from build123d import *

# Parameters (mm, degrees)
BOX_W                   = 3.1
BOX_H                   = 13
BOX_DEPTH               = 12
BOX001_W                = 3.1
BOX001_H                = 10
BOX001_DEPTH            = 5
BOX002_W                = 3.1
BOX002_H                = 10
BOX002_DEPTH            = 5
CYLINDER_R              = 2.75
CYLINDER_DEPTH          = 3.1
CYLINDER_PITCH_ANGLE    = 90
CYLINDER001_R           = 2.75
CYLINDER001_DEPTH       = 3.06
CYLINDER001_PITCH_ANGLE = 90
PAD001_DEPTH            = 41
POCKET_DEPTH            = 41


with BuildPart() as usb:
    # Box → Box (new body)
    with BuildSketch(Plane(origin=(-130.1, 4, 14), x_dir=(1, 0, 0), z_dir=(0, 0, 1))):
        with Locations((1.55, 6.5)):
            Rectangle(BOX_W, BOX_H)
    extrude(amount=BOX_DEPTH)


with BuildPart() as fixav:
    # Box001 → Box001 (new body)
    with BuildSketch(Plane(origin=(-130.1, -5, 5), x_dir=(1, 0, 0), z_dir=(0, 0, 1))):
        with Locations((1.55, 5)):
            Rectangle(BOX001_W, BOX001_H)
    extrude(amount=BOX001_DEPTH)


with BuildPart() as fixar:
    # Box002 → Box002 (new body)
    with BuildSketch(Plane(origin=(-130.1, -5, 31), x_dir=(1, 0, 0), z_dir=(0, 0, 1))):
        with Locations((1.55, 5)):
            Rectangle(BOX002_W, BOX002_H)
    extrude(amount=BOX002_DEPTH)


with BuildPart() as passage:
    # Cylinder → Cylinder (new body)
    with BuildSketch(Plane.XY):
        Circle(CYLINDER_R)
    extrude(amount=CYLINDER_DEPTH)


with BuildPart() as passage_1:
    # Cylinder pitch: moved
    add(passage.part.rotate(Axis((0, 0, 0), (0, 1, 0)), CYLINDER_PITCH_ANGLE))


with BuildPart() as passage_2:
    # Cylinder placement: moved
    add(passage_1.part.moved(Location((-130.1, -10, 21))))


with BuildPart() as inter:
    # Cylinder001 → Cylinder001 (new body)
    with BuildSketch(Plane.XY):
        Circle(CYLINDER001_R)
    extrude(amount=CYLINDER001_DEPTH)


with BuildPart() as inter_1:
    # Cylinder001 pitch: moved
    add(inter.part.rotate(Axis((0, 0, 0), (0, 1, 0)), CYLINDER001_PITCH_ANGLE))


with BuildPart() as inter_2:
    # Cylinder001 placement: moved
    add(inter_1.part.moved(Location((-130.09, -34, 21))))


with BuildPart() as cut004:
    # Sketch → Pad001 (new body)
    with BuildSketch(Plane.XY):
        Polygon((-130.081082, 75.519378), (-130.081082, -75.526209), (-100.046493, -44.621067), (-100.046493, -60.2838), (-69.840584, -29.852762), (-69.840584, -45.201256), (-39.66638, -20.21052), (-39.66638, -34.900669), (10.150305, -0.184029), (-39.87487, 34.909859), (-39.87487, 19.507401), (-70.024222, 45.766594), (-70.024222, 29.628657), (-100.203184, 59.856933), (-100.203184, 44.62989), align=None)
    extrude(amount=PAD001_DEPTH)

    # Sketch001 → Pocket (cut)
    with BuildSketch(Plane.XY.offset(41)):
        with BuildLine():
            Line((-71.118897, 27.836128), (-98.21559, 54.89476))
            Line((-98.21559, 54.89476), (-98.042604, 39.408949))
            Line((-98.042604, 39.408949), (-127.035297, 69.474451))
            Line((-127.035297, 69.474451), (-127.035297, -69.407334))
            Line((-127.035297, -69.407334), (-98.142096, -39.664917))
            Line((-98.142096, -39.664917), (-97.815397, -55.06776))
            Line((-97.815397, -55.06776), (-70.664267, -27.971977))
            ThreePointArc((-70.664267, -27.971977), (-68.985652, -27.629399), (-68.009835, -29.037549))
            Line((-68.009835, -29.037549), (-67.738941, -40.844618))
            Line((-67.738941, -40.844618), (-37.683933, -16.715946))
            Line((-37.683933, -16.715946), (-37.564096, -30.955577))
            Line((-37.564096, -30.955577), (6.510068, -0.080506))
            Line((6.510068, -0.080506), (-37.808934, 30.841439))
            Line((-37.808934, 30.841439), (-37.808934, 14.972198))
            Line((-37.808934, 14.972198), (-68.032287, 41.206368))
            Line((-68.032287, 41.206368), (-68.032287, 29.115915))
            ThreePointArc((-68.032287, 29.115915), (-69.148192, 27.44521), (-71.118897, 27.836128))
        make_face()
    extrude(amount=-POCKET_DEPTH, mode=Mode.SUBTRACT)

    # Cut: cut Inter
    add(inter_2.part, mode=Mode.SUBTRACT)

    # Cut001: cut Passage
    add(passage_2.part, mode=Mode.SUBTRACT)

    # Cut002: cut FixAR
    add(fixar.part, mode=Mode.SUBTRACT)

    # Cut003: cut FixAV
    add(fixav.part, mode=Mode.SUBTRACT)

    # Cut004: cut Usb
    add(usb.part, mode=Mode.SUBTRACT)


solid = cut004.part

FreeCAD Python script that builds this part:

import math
import FreeCAD as App
import Part
import Sketcher
from FreeCAD import Vector
Q = App.Units.Quantity


def add_polygon(sketch, points):
    """Adds a closed chain of lines whose ends are joined by coincident constraints."""
    first, n = sketch.GeometryCount, len(points)
    for a, b in zip(points, points[1:] + points[:1]):
        sketch.addGeometry(Part.LineSegment(App.Vector(*a, 0), App.Vector(*b, 0)), False)
    for i in range(n):
        sketch.addConstraint(Sketcher.Constraint("Coincident", first + i, 2, first + (i + 1) % n, 1))

doc = App.newDocument("Part")
body = doc.addObject("PartDesign::Body", "Body")

# Sketch on XY plane
sketch1 = doc.addObject("Sketcher::SketchObject", "Sketch")
body.addObject(sketch1)
sketch1.AttachmentSupport = (doc.XY_Plane, [""])
sketch1.MapMode = "FlatFace"
sketch1.AttachmentOffset = App.Placement(Vector(0, 0, 14), App.Rotation())
add_polygon(sketch1, [(-130.1, 17), (-130.1, 4), (-127, 4), (-127, 17)])  # lines 0-3
sketch1.addConstraint(Sketcher.Constraint("Vertical", 0))
sketch1.addConstraint(Sketcher.Constraint("Horizontal", 1))
sketch1.addConstraint(Sketcher.Constraint("Vertical", 2))
sketch1.addConstraint(Sketcher.Constraint("Horizontal", 3))
sketch1.addConstraint(Sketcher.Constraint("DistanceY", 0, 2, 0, 1, 13.0))
sketch1.addConstraint(Sketcher.Constraint("DistanceX", 1, 1, 1, 2, 3.1))
sketch1.addConstraint(Sketcher.Constraint("DistanceY", -1, 1, 0, 2, 4.0))
sketch1.addConstraint(Sketcher.Constraint("DistanceX", 1, 2, -1, 1, 127.0))
pad1 = doc.addObject("PartDesign::Pad", "Pad")
body.addObject(pad1)
pad1.Profile = sketch1
pad1.Length = 12
body2 = doc.addObject("PartDesign::Body", "Body001")

# Sketch on XY plane
sketch2 = doc.addObject("Sketcher::SketchObject", "Sketch001")
body2.addObject(sketch2)
sketch2.AttachmentSupport = (doc.getObject("XY_Plane001"), [""])
sketch2.MapMode = "FlatFace"
sketch2.AttachmentOffset = App.Placement(Vector(0, 0, 5), App.Rotation())
add_polygon(sketch2, [(-130.1, 5), (-130.1, -5), (-127, -5), (-127, 5)])  # lines 0-3
sketch2.addConstraint(Sketcher.Constraint("Vertical", 0))
sketch2.addConstraint(Sketcher.Constraint("Horizontal", 1))
sketch2.addConstraint(Sketcher.Constraint("Vertical", 2))
sketch2.addConstraint(Sketcher.Constraint("Horizontal", 3))
sketch2.addConstraint(Sketcher.Constraint("DistanceY", 0, 2, 0, 1, 10.0))
sketch2.addConstraint(Sketcher.Constraint("DistanceX", 1, 1, 1, 2, 3.1))
sketch2.addConstraint(Sketcher.Constraint("DistanceY", 0, 2, -1, 1, 5.0))
sketch2.addConstraint(Sketcher.Constraint("DistanceX", 1, 2, -1, 1, 127.0))
pad2 = doc.addObject("PartDesign::Pad", "Pad001")
body2.addObject(pad2)
pad2.Profile = sketch2
pad2.Length = 5
body3 = doc.addObject("PartDesign::Body", "Body002")

# Sketch on XY plane
sketch3 = doc.addObject("Sketcher::SketchObject", "Sketch002")
body3.addObject(sketch3)
sketch3.AttachmentSupport = (doc.getObject("XY_Plane002"), [""])
sketch3.MapMode = "FlatFace"
sketch3.AttachmentOffset = App.Placement(Vector(0, 0, 31), App.Rotation())
add_polygon(sketch3, [(-130.1, 5), (-130.1, -5), (-127, -5), (-127, 5)])  # lines 0-3
sketch3.addConstraint(Sketcher.Constraint("Vertical", 0))
sketch3.addConstraint(Sketcher.Constraint("Horizontal", 1))
sketch3.addConstraint(Sketcher.Constraint("Vertical", 2))
sketch3.addConstraint(Sketcher.Constraint("Horizontal", 3))
sketch3.addConstraint(Sketcher.Constraint("DistanceY", 0, 2, 0, 1, 10.0))
sketch3.addConstraint(Sketcher.Constraint("DistanceX", 1, 1, 1, 2, 3.1))
sketch3.addConstraint(Sketcher.Constraint("DistanceY", 0, 2, -1, 1, 5.0))
sketch3.addConstraint(Sketcher.Constraint("DistanceX", 1, 2, -1, 1, 127.0))
pad3 = doc.addObject("PartDesign::Pad", "Pad002")
body3.addObject(pad3)
pad3.Profile = sketch3
pad3.Length = 5
body4 = doc.addObject("PartDesign::Body", "Body003")

# Sketch on XY plane
sketch4 = doc.addObject("Sketcher::SketchObject", "Sketch003")
body4.addObject(sketch4)
sketch4.AttachmentSupport = (doc.getObject("XY_Plane003"), [""])
sketch4.MapMode = "FlatFace"
sketch4.addGeometry(Part.Circle(Vector(0, 0, 0), Vector(0, 0, 1), 2.8), False)
sketch4.addConstraint(Sketcher.Constraint("Coincident", 0, 3, -1, 1))
sketch4.addConstraint(Sketcher.Constraint("Diameter", 0, 5.5))
pad4 = doc.addObject("PartDesign::Pad", "Pad003")
body4.addObject(pad4)
pad4.Profile = sketch4
pad4.Length = 3.1
body5 = doc.addObject("PartDesign::Body", "Body004")
doc.recompute()

body4.Placement = App.Placement(Vector(0, 0, 0), App.Rotation(Vector(0, 1, 0), 90))
boolean = doc.addObject("PartDesign::Boolean", "Boolean")
body5.addObject(boolean)
boolean.Type = "Fuse"
boolean.addObjects([body4])
body6 = doc.addObject("PartDesign::Body", "Body005")
doc.recompute()

body5.Placement = App.Placement(Vector(-130.1, -10, 21), App.Rotation(Vector(0, 0, 1), 0))
boolean2 = doc.addObject("PartDesign::Boolean", "Boolean001")
body6.addObject(boolean2)
boolean2.Type = "Fuse"
boolean2.addObjects([body5])
body7 = doc.addObject("PartDesign::Body", "Body006")

# Sketch on XY plane
sketch5 = doc.addObject("Sketcher::SketchObject", "Sketch004")
body7.addObject(sketch5)
sketch5.AttachmentSupport = (doc.getObject("XY_Plane006"), [""])
sketch5.MapMode = "FlatFace"
sketch5.addGeometry(Part.Circle(Vector(0, 0, 0), Vector(0, 0, 1), 2.8), False)
sketch5.addConstraint(Sketcher.Constraint("Coincident", 0, 3, -1, 1))
sketch5.addConstraint(Sketcher.Constraint("Diameter", 0, 5.5))
pad5 = doc.addObject("PartDesign::Pad", "Pad004")
body7.addObject(pad5)
pad5.Profile = sketch5
pad5.Length = 3.06
body8 = doc.addObject("PartDesign::Body", "Body007")
doc.recompute()

body7.Placement = App.Placement(Vector(0, 0, 0), App.Rotation(Vector(0, 1, 0), 90))
boolean3 = doc.addObject("PartDesign::Boolean", "Boolean002")
body8.addObject(boolean3)
boolean3.Type = "Fuse"
boolean3.addObjects([body7])
body9 = doc.addObject("PartDesign::Body", "Body008")
doc.recompute()

body8.Placement = App.Placement(Vector(-130.09, -34, 21), App.Rotation(Vector(0, 0, 1), 0))
boolean4 = doc.addObject("PartDesign::Boolean", "Boolean003")
body9.addObject(boolean4)
boolean4.Type = "Fuse"
boolean4.addObjects([body8])
body10 = doc.addObject("PartDesign::Body", "Body009")

# Sketch on XY plane
sketch6 = doc.addObject("Sketcher::SketchObject", "Sketch005")
body10.addObject(sketch6)
sketch6.AttachmentSupport = (doc.getObject("XY_Plane009"), [""])
sketch6.MapMode = "FlatFace"
add_polygon(sketch6, [(-130, 76), (-130, -76), (-100, -45), (-100, -60), (-70, -30), (-70, -45), (-40, -20), (-40, -35), (10, 0), (-40, 35), (-40, 20), (-70, 46), (-70, 30), (-100, 60), (-100, 45)])  # lines 0-14
sketch6.addConstraint(Sketcher.Constraint("Vertical", 0))
sketch6.addConstraint(Sketcher.Constraint("Vertical", 2))
sketch6.addConstraint(Sketcher.Constraint("Vertical", 4))
sketch6.addConstraint(Sketcher.Constraint("Vertical", 6))
sketch6.addConstraint(Sketcher.Constraint("Vertical", 9))
sketch6.addConstraint(Sketcher.Constraint("Vertical", 11))
sketch6.addConstraint(Sketcher.Constraint("Vertical", 13))
sketch6.addConstraint(Sketcher.Constraint("DistanceY", 6, 2, 6, 1, 14.690149))
sketch6.addConstraint(Sketcher.Constraint("DistanceY", 2, 2, -1, 1, 60.2838))
sketch6.addConstraint(Sketcher.Constraint("DistanceY", -1, 1, 9, 2, 19.507401))
sketch6.addConstraint(Sketcher.Constraint("DistanceX", 0, 2, 3, 2, 60.240498))
sketch6.addConstraint(Sketcher.Constraint("DistanceX", 1, 2, 7, 2, 110.196798))
sketch6.addConstraint(Sketcher.Constraint("DistanceY", 11, 2, 8, 2, 5.281202))
sketch6.addConstraint(Sketcher.Constraint("DistanceX", 12, 2, 3, 2, 30.3626))
sketch6.addConstraint(Sketcher.Constraint("Distance", 3, 42.877092))
sketch6.addConstraint(Sketcher.Constraint("Distance", 12, 42.714382))
sketch6.addConstraint(Sketcher.Constraint("DistanceY", 0, 2, 0, 1, 151.045587))
sketch6.addConstraint(Sketcher.Constraint("DistanceY", 2, 2, 2, 1, 15.662733))
sketch6.addConstraint(Sketcher.Constraint("DistanceY", 4, 2, 4, 1, 15.348494))
sketch6.addConstraint(Sketcher.Constraint("DistanceY", 9, 2, 9, 1, 15.402458))
sketch6.addConstraint(Sketcher.Constraint("DistanceY", 11, 2, 11, 1, 16.137937))
sketch6.addConstraint(Sketcher.Constraint("DistanceY", 13, 2, 13, 1, 15.227043))
sketch6.addConstraint(Sketcher.Constraint("DistanceY", 0, 2, -1, 1, 75.526209))
sketch6.addConstraint(Sketcher.Constraint("DistanceY", 3, 2, -1, 1, 29.852762))
sketch6.addConstraint(Sketcher.Constraint("DistanceX", 5, 2, -1, 1, 39.66638))
sketch6.addConstraint(Sketcher.Constraint("DistanceY", 5, 2, -1, 1, 20.21052))
sketch6.addConstraint(Sketcher.Constraint("DistanceY", 7, 2, -1, 1, 0.184029))
sketch6.addConstraint(Sketcher.Constraint("DistanceX", 8, 2, -1, 1, 39.87487))
sketch6.addConstraint(Sketcher.Constraint("DistanceX", 10, 2, -1, 1, 70.024222))
sketch6.addConstraint(Sketcher.Constraint("DistanceY", -1, 1, 13, 2, 44.62989))
pad6 = doc.addObject("PartDesign::Pad", "Pad005")
body10.addObject(pad6)
pad6.Profile = sketch6
pad6.Length = 41

# Sketch on XY plane
sketch7 = doc.addObject("Sketcher::SketchObject", "Sketch006")
body10.addObject(sketch7)
sketch7.AttachmentSupport = (doc.getObject("XY_Plane009"), [""])
sketch7.MapMode = "FlatFace"
sketch7.AttachmentOffset = App.Placement(Vector(0, 0, 41), App.Rotation())
sketch7.addGeometry(Part.LineSegment(Vector(-71.1, 27.8, 0), Vector(-98.2, 54.9, 0)), False)
sketch7.addGeometry(Part.LineSegment(Vector(-98.2, 54.9, 0), Vector(-98, 39.4, 0)), False)
sketch7.addGeometry(Part.LineSegment(Vector(-98, 39.4, 0), Vector(-127, 69.5, 0)), False)
sketch7.addGeometry(Part.LineSegment(Vector(-127, 69.5, 0), Vector(-127, -69.4, 0)), False)
sketch7.addGeometry(Part.LineSegment(Vector(-127, -69.4, 0), Vector(-98.1, -39.7, 0)), False)
sketch7.addGeometry(Part.LineSegment(Vector(-98.1, -39.7, 0), Vector(-97.8, -55.1, 0)), False)
sketch7.addGeometry(Part.LineSegment(Vector(-97.8, -55.1, 0), Vector(-70.7, -28, 0)), False)
sketch7.addGeometry(Part.ArcOfCircle(Part.Circle(Vector(-69.6, -29.1, 0), Vector(0, 0, 1), 1.6), math.radians(1), math.radians(135)), False)
sketch7.addGeometry(Part.LineSegment(Vector(-68, -29, 0), Vector(-67.7, -40.8, 0)), False)
sketch7.addGeometry(Part.LineSegment(Vector(-67.7, -40.8, 0), Vector(-37.7, -16.7, 0)), False)
sketch7.addGeometry(Part.LineSegment(Vector(-37.7, -16.7, 0), Vector(-37.6, -31, 0)), False)
sketch7.addGeometry(Part.LineSegment(Vector(-37.6, -31, 0), Vector(6.5, -0.1, 0)), False)
sketch7.addGeometry(Part.LineSegment(Vector(6.5, -0.1, 0), Vector(-37.8, 30.8, 0)), False)
sketch7.addGeometry(Part.LineSegment(Vector(-37.8, 30.8, 0), Vector(-37.8, 15, 0)), False)
sketch7.addGeometry(Part.LineSegment(Vector(-37.8, 15, 0), Vector(-68, 41.2, 0)), False)
sketch7.addGeometry(Part.LineSegment(Vector(-68, 41.2, 0), Vector(-68, 29.1, 0)), False)
sketch7.addGeometry(Part.ArcOfCircle(Part.Circle(Vector(-69.8, 29.1, 0), Vector(0, 0, 1), 1.8), math.radians(-135), math.radians(0)), False)
sketch7.addConstraint(Sketcher.Constraint("Coincident", 0, 2, 1, 1))
sketch7.addConstraint(Sketcher.Constraint("Coincident", 1, 2, 2, 1))
sketch7.addConstraint(Sketcher.Constraint("Coincident", 2, 2, 3, 1))
sketch7.addConstraint(Sketcher.Constraint("Coincident", 3, 2, 4, 1))
sketch7.addConstraint(Sketcher.Constraint("Coincident", 4, 2, 5, 1))
sketch7.addConstraint(Sketcher.Constraint("Coincident", 5, 2, 6, 1))
sketch7.addConstraint(Sketcher.Constraint("Tangent", 6, 2, 7, 2))
sketch7.addConstraint(Sketcher.Constraint("Tangent", 7, 1, 8, 1))
sketch7.addConstraint(Sketcher.Constraint("Coincident", 8, 2, 9, 1))
sketch7.addConstraint(Sketcher.Constraint("Coincident", 9, 2, 10, 1))
sketch7.addConstraint(Sketcher.Constraint("Coincident", 10, 2, 11, 1))
sketch7.addConstraint(Sketcher.Constraint("Coincident", 11, 2, 12, 1))
sketch7.addConstraint(Sketcher.Constraint("Coincident", 12, 2, 13, 1))
sketch7.addConstraint(Sketcher.Constraint("Coincident", 13, 2, 14, 1))
sketch7.addConstraint(Sketcher.Constraint("Coincident", 14, 2, 15, 1))
sketch7.addConstraint(Sketcher.Constraint("Tangent", 15, 2, 16, 2))
sketch7.addConstraint(Sketcher.Constraint("Tangent", 16, 1, 0, 1))
sketch7.addConstraint(Sketcher.Constraint("Vertical", 3))
sketch7.addConstraint(Sketcher.Constraint("Vertical", 13))
sketch7.addConstraint(Sketcher.Constraint("Vertical", 15))
sketch7.addConstraint(Sketcher.Constraint("Angle", 1, Q("-89.359998 deg")))
sketch7.addConstraint(Sketcher.Constraint("Radius", 16, 1.808621))
sketch7.addConstraint(Sketcher.Constraint("Radius", 7, 1.555828))
sketch7.addConstraint(Sketcher.Constraint("DistanceX", 9, 2, 11, 2, 44.194001))
sketch7.addConstraint(Sketcher.Constraint("DistanceX", 12, 2, 9, 2, 0.125001))
sketch7.addConstraint(Sketcher.Constraint("DistanceY", 13, 2, 13, 1, 15.869241))
sketch7.addConstraint(Sketcher.Constraint("DistanceY", 3, 2, 7, 3, 40.334099))
sketch7.addConstraint(Sketcher.Constraint("DistanceX", 3, 2, 4, 2, 28.893201))
sketch7.addConstraint(Sketcher.Constraint("DistanceX", 4, 2, 5, 2, 0.326699))
sketch7.addConstraint(Sketcher.Constraint("DistanceY", 8, 2, 4, 2, 1.179701))
sketch7.addConstraint(Sketcher.Constraint("DistanceY", 10, 2, 6, 2, 2.9836))
sketch7.addConstraint(Sketcher.Constraint("Distance", 2, 41.76734))
sketch7.addConstraint(Sketcher.Constraint("Distance", 4, 41.465991))
sketch7.addConstraint(Sketcher.Constraint("Distance", 6, 38.35838))
sketch7.addConstraint(Sketcher.Constraint("Distance", 14, 40.021029))
sketch7.addConstraint(Sketcher.Constraint("DistanceY", 3, 2, 3, 1, 138.881785))
sketch7.addConstraint(Sketcher.Constraint("DistanceY", 15, 2, 15, 1, 12.090453))
sketch7.addConstraint(Sketcher.Constraint("DistanceX", 16, 3, -1, 1, 69.840908))
sketch7.addConstraint(Sketcher.Constraint("DistanceX", 0, 2, -1, 1, 98.21559))
sketch7.addConstraint(Sketcher.Constraint("DistanceY", -1, 1, 0, 2, 54.89476))
sketch7.addConstraint(Sketcher.Constraint("DistanceY", -1, 1, 1, 2, 39.408949))
sketch7.addConstraint(Sketcher.Constraint("DistanceY", -1, 1, 2, 2, 69.474451))
sketch7.addConstraint(Sketcher.Constraint("DistanceY", 5, 2, -1, 1, 55.06776))
sketch7.addConstraint(Sketcher.Constraint("DistanceY", 7, 1, -1, 1, 29.037549))
sketch7.addConstraint(Sketcher.Constraint("DistanceX", -1, 1, 11, 2, 6.510068))
sketch7.addConstraint(Sketcher.Constraint("DistanceY", -1, 1, 12, 2, 30.841439))
sketch7.addConstraint(Sketcher.Constraint("DistanceY", 7, 3, 9, 2, 12.357289))
sketch7.addConstraint(Sketcher.Constraint("DistanceX", 7, 1, 10, 2, 30.445739))
sketch7.addConstraint(Sketcher.Constraint("DistanceY", 9, 2, 11, 2, 16.63544))
pocket1 = doc.addObject("PartDesign::Pocket", "Pocket")
body10.addObject(pocket1)
pocket1.Profile = sketch7
pocket1.Length = 41
doc.recompute()

boolean5 = doc.addObject("PartDesign::Boolean", "Boolean004")
body10.addObject(boolean5)
boolean5.Type = "Cut"
boolean5.addObjects([body9])
doc.recompute()

boolean6 = doc.addObject("PartDesign::Boolean", "Boolean005")
body10.addObject(boolean6)
boolean6.Type = "Cut"
boolean6.addObjects([body6])
doc.recompute()

boolean7 = doc.addObject("PartDesign::Boolean", "Boolean006")
body10.addObject(boolean7)
boolean7.Type = "Cut"
boolean7.addObjects([body3])
doc.recompute()

boolean8 = doc.addObject("PartDesign::Boolean", "Boolean007")
body10.addObject(boolean8)
boolean8.Type = "Cut"
boolean8.addObjects([body2])
doc.recompute()

boolean9 = doc.addObject("PartDesign::Boolean", "Boolean008")
body10.addObject(boolean9)
boolean9.Type = "Cut"
boolean9.addObjects([body])

doc.recompute()
